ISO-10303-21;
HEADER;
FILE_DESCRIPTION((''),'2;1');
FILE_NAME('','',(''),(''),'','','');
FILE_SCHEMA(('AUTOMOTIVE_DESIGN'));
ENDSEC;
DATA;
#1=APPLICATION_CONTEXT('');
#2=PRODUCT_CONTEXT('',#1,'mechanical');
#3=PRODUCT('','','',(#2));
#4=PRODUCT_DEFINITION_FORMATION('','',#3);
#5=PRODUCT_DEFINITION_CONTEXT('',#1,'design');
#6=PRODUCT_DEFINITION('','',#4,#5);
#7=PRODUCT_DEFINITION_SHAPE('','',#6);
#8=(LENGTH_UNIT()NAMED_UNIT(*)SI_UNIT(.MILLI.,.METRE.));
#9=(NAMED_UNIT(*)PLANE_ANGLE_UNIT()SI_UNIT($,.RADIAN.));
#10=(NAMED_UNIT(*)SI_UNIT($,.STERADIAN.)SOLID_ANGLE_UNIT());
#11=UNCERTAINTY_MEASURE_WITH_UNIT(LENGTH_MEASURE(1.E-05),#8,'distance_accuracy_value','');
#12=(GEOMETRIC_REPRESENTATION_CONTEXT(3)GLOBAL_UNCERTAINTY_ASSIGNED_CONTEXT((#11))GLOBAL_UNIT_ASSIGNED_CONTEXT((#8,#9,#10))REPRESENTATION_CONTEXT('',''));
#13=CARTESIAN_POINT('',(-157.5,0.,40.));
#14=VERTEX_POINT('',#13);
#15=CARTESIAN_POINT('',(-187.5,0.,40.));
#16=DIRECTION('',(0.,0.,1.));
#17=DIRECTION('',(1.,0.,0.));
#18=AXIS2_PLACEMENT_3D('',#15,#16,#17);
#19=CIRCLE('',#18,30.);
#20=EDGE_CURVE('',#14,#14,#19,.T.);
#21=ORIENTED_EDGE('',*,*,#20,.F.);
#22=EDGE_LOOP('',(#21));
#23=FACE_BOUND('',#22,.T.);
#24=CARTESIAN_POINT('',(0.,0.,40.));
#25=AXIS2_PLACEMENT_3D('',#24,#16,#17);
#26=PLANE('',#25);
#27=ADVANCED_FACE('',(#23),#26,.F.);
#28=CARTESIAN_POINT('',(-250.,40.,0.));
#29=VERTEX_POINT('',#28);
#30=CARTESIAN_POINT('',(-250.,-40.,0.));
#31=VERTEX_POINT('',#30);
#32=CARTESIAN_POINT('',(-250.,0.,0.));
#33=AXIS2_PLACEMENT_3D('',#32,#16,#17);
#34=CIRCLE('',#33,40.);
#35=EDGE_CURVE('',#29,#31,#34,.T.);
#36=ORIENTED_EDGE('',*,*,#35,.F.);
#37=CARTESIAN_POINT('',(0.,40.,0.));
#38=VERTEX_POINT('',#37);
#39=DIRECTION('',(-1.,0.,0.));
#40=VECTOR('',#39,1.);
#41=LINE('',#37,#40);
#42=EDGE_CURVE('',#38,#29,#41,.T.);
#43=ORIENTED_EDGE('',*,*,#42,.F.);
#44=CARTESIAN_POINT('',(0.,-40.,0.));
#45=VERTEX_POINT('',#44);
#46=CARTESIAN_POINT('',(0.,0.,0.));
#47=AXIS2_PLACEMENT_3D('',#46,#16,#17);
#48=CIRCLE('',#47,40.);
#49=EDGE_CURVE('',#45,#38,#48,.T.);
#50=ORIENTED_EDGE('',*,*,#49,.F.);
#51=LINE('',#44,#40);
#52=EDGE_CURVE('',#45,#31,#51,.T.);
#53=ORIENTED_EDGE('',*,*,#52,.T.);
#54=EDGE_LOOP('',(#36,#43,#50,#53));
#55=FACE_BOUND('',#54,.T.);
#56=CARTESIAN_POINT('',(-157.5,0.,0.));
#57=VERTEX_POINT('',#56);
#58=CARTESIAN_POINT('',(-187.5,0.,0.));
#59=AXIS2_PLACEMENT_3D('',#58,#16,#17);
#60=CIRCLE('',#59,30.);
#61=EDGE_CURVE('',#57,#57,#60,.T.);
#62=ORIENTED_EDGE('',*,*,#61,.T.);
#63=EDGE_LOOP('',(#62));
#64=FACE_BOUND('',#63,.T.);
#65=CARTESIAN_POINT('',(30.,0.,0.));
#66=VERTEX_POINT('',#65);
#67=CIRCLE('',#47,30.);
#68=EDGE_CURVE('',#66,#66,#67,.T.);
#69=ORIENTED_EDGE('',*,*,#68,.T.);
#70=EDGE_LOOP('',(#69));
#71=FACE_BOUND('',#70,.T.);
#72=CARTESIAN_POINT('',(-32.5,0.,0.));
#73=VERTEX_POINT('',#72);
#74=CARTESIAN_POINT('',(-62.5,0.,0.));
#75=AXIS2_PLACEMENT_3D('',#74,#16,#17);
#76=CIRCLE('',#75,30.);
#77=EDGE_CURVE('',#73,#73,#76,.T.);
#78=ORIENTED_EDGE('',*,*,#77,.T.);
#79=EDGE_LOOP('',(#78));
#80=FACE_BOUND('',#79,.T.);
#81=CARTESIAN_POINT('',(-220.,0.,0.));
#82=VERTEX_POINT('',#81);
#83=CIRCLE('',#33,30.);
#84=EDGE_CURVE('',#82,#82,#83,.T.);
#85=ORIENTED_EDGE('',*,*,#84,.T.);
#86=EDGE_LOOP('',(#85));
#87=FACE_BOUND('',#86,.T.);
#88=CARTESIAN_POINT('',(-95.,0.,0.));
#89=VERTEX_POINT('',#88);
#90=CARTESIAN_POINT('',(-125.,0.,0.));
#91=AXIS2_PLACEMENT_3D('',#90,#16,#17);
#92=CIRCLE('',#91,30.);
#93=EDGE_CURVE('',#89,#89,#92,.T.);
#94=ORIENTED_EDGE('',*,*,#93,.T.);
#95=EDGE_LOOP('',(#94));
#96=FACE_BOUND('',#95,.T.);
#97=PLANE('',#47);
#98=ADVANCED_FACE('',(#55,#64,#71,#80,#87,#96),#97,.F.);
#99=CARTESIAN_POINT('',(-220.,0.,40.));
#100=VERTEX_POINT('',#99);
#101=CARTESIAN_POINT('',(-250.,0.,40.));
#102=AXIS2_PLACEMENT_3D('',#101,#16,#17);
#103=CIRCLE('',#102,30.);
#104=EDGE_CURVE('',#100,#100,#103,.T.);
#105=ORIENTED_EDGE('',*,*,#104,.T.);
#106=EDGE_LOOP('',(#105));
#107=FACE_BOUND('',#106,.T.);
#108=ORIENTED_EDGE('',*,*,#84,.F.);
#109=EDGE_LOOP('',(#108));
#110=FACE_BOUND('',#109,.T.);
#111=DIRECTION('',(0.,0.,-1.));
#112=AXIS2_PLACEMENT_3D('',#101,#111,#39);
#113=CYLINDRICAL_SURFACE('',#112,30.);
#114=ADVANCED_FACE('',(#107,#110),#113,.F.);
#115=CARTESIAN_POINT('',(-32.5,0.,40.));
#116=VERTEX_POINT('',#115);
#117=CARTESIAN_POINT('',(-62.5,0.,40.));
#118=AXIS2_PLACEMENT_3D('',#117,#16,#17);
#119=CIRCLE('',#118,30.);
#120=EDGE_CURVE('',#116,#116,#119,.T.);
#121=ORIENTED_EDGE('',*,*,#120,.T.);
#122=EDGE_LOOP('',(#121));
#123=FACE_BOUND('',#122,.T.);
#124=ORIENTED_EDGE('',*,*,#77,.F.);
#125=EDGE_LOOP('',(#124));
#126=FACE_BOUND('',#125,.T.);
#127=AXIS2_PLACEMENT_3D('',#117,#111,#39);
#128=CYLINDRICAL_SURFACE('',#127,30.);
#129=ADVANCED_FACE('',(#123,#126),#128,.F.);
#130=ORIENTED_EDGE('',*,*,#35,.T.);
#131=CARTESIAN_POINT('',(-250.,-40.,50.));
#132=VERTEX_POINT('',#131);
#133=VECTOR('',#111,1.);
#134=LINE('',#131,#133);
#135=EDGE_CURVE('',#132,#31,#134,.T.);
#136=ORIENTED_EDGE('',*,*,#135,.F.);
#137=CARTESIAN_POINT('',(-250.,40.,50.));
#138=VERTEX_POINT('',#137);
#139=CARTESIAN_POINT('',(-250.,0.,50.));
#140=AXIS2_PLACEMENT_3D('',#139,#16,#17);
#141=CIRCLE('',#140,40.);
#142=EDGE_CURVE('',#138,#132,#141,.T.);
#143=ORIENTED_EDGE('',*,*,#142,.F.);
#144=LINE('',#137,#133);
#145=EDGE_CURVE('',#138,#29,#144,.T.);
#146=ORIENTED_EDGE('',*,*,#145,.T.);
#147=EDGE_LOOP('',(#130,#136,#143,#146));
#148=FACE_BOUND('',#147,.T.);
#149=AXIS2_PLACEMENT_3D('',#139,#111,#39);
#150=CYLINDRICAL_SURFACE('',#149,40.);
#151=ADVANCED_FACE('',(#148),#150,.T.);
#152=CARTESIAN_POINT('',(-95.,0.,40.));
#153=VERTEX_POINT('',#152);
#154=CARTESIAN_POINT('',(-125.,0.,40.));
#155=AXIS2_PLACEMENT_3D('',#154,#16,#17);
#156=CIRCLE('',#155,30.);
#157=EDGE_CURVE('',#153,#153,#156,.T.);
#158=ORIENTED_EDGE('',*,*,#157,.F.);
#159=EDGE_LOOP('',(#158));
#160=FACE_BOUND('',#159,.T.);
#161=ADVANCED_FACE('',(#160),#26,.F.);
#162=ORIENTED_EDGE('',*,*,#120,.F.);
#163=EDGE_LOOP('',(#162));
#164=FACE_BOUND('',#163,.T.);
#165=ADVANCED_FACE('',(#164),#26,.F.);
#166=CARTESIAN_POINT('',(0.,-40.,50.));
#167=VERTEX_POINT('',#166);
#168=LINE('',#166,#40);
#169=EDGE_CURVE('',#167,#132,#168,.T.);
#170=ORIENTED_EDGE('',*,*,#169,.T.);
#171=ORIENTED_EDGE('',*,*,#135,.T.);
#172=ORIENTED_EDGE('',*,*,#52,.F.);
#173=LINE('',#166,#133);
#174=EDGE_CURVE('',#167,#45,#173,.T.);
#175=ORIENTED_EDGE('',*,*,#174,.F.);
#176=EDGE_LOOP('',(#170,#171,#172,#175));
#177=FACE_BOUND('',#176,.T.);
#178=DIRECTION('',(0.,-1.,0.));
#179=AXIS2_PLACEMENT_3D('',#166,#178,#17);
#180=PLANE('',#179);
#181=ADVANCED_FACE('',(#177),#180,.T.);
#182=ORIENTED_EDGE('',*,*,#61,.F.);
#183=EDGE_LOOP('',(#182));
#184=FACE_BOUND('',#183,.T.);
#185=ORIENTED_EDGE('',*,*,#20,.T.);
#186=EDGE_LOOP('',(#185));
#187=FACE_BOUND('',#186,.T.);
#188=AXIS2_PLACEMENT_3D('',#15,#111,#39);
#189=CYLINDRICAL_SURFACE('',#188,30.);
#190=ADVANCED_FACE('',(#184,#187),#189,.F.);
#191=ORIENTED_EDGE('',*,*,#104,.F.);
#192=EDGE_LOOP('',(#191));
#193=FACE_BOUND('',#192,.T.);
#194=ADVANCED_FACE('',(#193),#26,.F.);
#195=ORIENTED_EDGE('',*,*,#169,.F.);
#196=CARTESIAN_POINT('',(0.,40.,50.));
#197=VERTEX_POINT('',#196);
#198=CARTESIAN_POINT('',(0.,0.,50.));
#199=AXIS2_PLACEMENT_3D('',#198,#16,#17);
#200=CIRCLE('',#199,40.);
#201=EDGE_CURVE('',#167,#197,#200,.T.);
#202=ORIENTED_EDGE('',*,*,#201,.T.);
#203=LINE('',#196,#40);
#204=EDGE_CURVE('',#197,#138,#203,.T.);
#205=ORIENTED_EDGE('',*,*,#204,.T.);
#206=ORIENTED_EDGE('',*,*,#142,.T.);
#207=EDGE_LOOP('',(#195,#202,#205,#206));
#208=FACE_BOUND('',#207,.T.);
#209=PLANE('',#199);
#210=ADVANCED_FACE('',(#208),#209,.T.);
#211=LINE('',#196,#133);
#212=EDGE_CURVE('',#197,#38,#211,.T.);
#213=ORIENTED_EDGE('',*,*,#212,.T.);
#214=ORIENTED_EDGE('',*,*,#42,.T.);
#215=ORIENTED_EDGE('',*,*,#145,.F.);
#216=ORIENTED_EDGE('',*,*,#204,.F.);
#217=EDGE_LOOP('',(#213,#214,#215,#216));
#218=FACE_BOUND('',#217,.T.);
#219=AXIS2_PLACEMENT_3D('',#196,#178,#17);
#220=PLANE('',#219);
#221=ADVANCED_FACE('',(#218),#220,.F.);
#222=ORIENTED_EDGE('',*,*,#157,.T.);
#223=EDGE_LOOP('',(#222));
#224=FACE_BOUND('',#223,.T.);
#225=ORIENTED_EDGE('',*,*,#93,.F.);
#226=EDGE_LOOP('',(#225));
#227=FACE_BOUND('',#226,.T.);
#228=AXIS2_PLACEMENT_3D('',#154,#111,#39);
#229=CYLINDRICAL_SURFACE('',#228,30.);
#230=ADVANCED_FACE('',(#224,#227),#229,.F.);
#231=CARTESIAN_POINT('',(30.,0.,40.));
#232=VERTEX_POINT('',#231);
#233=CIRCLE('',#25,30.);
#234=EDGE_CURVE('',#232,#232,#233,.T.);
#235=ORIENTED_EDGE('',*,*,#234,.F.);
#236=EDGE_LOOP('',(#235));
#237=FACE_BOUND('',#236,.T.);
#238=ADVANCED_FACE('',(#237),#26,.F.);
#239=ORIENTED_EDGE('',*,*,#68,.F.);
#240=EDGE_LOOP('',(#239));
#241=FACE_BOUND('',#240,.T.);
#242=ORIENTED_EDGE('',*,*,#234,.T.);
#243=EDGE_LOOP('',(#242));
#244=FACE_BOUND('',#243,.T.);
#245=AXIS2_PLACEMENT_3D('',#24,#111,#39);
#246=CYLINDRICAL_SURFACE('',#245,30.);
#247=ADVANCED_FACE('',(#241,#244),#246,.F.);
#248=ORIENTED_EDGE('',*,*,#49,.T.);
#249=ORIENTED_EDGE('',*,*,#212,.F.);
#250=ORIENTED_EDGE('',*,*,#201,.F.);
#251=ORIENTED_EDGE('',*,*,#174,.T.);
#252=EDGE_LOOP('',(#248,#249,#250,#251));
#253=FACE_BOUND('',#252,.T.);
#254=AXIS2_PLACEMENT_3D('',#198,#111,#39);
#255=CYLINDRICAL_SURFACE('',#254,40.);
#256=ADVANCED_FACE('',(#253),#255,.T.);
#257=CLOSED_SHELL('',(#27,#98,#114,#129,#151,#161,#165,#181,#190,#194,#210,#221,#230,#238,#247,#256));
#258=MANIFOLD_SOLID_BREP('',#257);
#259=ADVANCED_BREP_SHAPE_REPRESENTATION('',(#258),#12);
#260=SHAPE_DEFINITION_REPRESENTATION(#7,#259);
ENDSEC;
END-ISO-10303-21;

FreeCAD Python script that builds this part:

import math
import FreeCAD as App
import Part
import Sketcher
from FreeCAD import Vector

doc = App.newDocument("Part")
body = doc.addObject("PartDesign::Body", "Body")

# Sketch on XY plane
sketch1 = body.newObject("Sketcher::SketchObject", "Sketch")
sketch1.AttachmentSupport = (doc.getObject("XY_Plane"), [""])
sketch1.MapMode = "FlatFace"
sketch1.addGeometry([
    Part.LineSegment(Vector(-250, -40, 0), Vector(0, -40, 0)),
    Part.ArcOfCircle(Part.Circle(Vector(0, 0, 0), Vector(0, 0, 1), 40), math.radians(-90), math.radians(90)),
    Part.LineSegment(Vector(0, 40, 0), Vector(-250, 40, 0)),
    Part.ArcOfCircle(Part.Circle(Vector(-250, 0, 0), Vector(0, 0, 1), 40), math.radians(90), math.radians(270)),
], False)
sketch1.addConstraint([
    Sketcher.Constraint("Tangent", 0, 2, 1, 1),
    Sketcher.Constraint("Tangent", 1, 2, 2, 1),
    Sketcher.Constraint("Tangent", 2, 2, 3, 1),
    Sketcher.Constraint("Tangent", 3, 2, 0, 1),
    Sketcher.Constraint("Horizontal", 0),
    Sketcher.Constraint("Horizontal", 2),
    Sketcher.Constraint("Coincident", 1, 3, -1, 1),
    Sketcher.Constraint("Radius", 1, 40.0),
    Sketcher.Constraint("DistanceX", 0, 1, 0, 2, 250.0),
])
pad1 = body.newObject("PartDesign::Pad", "Pad")
pad1.Profile = sketch1
pad1.Length = 50

# Sketch on XY plane
sketch2 = body.newObject("Sketcher::SketchObject", "Sketch001")
sketch2.AttachmentSupport = (doc.getObject("XY_Plane"), [""])
sketch2.MapMode = "FlatFace"
sketch2.addGeometry([
    Part.Circle(Vector(-250, 0, 0), Vector(0, 0, 1), 30),  # 0
    Part.Circle(Vector(0, 0, 0), Vector(0, 0, 1), 30),  # 1
    Part.Circle(Vector(-188, 0, 0), Vector(0, 0, 1), 30),  # 2
    Part.Circle(Vector(-62, 0, 0), Vector(0, 0, 1), 30),  # 3
    Part.Circle(Vector(-125, 0, 0), Vector(0, 0, 1), 30),  # 4
], False)
sketch2.addConstraint([
    Sketcher.Constraint("Coincident", 1, 3, -1, 1),
    Sketcher.Constraint("Equal", 0, 1),
    Sketcher.Constraint("Equal", 1, 2),
    Sketcher.Constraint("Equal", 2, 3),
    Sketcher.Constraint("Equal", 3, 4),
    Sketcher.Constraint("PointOnObject", 0, 3, -1),
    Sketcher.Constraint("PointOnObject", 2, 3, -1),
    Sketcher.Constraint("PointOnObject", 3, 3, -1),
    Sketcher.Constraint("PointOnObject", 4, 3, -1),
    Sketcher.Constraint("Diameter", 0, 60.0),
    Sketcher.Constraint("DistanceX", 0, 3, -1, 1, 250.0),
    Sketcher.Constraint("DistanceX", 4, 3, -1, 1, 125.0),
    Sketcher.Constraint("DistanceX", 2, 3, 3, 3, 125.0),
    Sketcher.Constraint("DistanceX", 2, 3, -1, 1, 187.5),
])
pocket1 = body.newObject("PartDesign::Pocket", "Pocket")
pocket1.Profile = sketch2
pocket1.Length = 40
pocket1.Reversed = True

doc.recompute()
